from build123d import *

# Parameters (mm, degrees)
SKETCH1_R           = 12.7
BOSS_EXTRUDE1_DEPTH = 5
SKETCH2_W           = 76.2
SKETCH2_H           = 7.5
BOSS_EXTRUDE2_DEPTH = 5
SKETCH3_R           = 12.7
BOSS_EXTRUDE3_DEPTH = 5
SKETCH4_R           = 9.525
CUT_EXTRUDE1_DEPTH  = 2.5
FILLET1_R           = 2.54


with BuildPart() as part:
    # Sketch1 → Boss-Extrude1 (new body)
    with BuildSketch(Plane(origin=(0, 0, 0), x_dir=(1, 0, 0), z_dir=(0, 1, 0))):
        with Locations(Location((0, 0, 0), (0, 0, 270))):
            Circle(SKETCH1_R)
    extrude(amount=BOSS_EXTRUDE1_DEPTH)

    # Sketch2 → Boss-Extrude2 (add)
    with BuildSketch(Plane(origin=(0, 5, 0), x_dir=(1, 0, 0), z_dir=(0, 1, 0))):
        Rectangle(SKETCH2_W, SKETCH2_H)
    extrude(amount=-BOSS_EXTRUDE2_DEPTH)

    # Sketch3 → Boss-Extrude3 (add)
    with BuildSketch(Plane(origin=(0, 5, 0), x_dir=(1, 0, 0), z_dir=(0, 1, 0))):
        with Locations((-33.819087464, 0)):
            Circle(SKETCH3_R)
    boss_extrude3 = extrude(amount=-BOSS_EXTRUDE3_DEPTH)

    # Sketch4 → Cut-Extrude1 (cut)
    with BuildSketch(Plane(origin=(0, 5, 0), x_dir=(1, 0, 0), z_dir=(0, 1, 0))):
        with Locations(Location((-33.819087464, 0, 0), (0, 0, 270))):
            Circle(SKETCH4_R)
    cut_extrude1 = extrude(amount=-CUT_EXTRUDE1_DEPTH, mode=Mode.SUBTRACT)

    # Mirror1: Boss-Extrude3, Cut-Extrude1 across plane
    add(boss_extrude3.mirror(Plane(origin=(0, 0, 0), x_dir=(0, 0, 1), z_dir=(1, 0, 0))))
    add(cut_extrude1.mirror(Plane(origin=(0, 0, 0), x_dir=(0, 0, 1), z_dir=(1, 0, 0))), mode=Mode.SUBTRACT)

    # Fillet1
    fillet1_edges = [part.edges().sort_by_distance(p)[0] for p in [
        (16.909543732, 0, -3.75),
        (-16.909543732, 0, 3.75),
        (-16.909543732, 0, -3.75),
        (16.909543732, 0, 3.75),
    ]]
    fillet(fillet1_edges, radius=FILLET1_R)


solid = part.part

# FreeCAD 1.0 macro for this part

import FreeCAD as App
import Part
import Sketcher

V = App.Vector
Q = App.Units.Quantity


def edges_at(feature, points):
    """Names of the edges that pass closest to the given points."""
    edges = feature.Shape.Edges
    near = lambda p: min(range(len(edges)), key=lambda i: edges[i].distToShape(Part.Vertex(*p))[0])
    return sorted({f"Edge{near(p) + 1}" for p in points})

doc = App.newDocument("Part")
body = doc.addObject("PartDesign::Body", "Body")

sketch1 = body.newObject("Sketcher::SketchObject", "Sketch")
sketch1.AttachmentSupport = (doc.getObject("XZ_Plane"), [""])
sketch1.MapMode = "FlatFace"
sketch1.addGeometry(Part.Circle(V(0, 0, 0), V(0, 0, 1), 13), False)
sketch1.addConstraint([
    Sketcher.Constraint("Coincident", 0, 3, -1, 1),
    Sketcher.Constraint("Diameter", 0, Q("1 in")),
])
pad1 = body.newObject("PartDesign::Pad", "Pad")
pad1.Profile = sketch1
pad1.Length = 5
pad1.Reversed = True

sketch2 = body.newObject("Sketcher::SketchObject", "Sketch001")
sketch2.AttachmentSupport = (doc.getObject("XZ_Plane"), [""])
sketch2.MapMode = "FlatFace"
sketch2.AttachmentOffset = App.Placement(V(0, 0, -5), App.Rotation())
sketch2.addGeometry([
    Part.LineSegment(V(-38, -4, 0), V(-38, 4, 0)),
    Part.LineSegment(V(-38, 4, 0), V(38, 4, 0)),
    Part.LineSegment(V(38, 4, 0), V(38, -4, 0)),
    Part.LineSegment(V(38, -4, 0), V(-38, -4, 0)),
], False)
sketch2.addConstraint([
    Sketcher.Constraint("Coincident", 0, 2, 1, 1),
    Sketcher.Constraint("Coincident", 1, 2, 2, 1),
    Sketcher.Constraint("Coincident", 2, 2, 3, 1),
    Sketcher.Constraint("Coincident", 3, 2, 0, 1),
    Sketcher.Constraint("Vertical", 0),
    Sketcher.Constraint("Horizontal", 1),
    Sketcher.Constraint("Vertical", 2),
    Sketcher.Constraint("Horizontal", 3),
    Sketcher.Constraint("Symmetric", 0, 2, 2, 2, -1, 1),
    Sketcher.Constraint("DistanceX", 1, 1, 1, 2, Q("3 in")),
    Sketcher.Constraint("DistanceY", 0, 1, 0, 2, 7.5),
])
pad2 = body.newObject("PartDesign::Pad", "Pad001")
pad2.Profile = sketch2
pad2.Length = 5

sketch3 = body.newObject("Sketcher::SketchObject", "Sketch002")
sketch3.AttachmentSupport = (doc.getObject("XZ_Plane"), [""])
sketch3.MapMode = "FlatFace"
sketch3.AttachmentOffset = App.Placement(V(0, 0, -5), App.Rotation())
sketch3.addGeometry(Part.Circle(V(-34, 0, 0), V(0, 0, 1), 13), False)
sketch3.addConstraint([
    Sketcher.Constraint("PointOnObject", 0, 3, -1),
    Sketcher.Constraint("Diameter", 0, Q("1 in")),
    Sketcher.Constraint("DistanceX", 0, 3, -1, 1, 33.819087),
])
pad3 = body.newObject("PartDesign::Pad", "Pad002")
pad3.Profile = sketch3
pad3.Length = 5

sketch4 = body.newObject("Sketcher::SketchObject", "Sketch003")
sketch4.AttachmentSupport = (doc.getObject("XZ_Plane"), [""])
sketch4.MapMode = "FlatFace"
sketch4.AttachmentOffset = App.Placement(V(0, 0, -5), App.Rotation())
sketch4.addGeometry(Part.Circle(V(-34, 0, 0), V(0, 0, 1), 10), False)
sketch4.addConstraint([
    Sketcher.Constraint("PointOnObject", 0, 3, -1),
    Sketcher.Constraint("Diameter", 0, Q("0.75 in")),
    Sketcher.Constraint("DistanceX", 0, 3, -1, 1, 33.819087),
])
pocket1 = body.newObject("PartDesign::Pocket", "Pocket")
pocket1.Profile = sketch4
pocket1.Length = 2.5
pocket1.Reversed = True
doc.recompute()

mirrored = body.newObject("PartDesign::Mirrored", "Mirrored")
mirrored.Originals = [pad3, pocket1]
mirrored.MirrorPlane = (doc.getObject("YZ_Plane"), [""])
body.Tip = mirrored
doc.recompute()

fillet = body.newObject("PartDesign::Fillet", "Fillet")
fillet.Base = (mirrored, edges_at(mirrored, [
    (16.91, 0, -3.75),
    (-16.91, 0, 3.75),
    (-16.91, 0, -3.75),
    (16.91, 0, 3.75),
]))
fillet.Radius = Q("0.1 in")

doc.recompute()
